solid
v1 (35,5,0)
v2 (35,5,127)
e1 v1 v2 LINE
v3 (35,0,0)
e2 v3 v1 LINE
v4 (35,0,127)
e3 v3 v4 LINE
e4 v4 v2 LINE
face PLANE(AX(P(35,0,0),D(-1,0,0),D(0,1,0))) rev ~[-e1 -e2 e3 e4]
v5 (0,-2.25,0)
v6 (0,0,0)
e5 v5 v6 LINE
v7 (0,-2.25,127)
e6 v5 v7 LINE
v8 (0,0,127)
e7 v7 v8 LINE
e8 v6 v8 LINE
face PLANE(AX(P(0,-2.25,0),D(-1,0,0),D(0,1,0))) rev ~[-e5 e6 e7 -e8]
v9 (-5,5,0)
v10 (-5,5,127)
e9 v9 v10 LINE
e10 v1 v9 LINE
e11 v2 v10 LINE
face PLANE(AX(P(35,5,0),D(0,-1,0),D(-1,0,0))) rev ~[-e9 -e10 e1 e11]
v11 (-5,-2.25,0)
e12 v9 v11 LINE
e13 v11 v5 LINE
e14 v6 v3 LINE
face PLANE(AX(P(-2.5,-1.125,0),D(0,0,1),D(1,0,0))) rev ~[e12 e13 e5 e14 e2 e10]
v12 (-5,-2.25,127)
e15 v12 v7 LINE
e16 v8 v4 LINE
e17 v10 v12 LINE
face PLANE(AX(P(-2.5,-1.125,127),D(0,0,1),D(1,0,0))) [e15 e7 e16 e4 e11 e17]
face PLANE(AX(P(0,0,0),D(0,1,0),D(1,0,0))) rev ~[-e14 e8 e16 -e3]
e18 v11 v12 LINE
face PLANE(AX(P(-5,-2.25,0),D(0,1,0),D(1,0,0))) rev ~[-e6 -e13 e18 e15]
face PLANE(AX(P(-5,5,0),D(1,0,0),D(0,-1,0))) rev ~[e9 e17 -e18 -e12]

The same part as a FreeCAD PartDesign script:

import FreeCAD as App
import Part
import Sketcher
Q = App.Units.Quantity

doc = App.newDocument("Part")
body = doc.addObject("PartDesign::Body", "Body")

sketch1 = body.newObject("Sketcher::SketchObject", "Sketch")
sketch1.AttachmentSupport = (doc.getObject("XY_Plane"), [""])
sketch1.MapMode = "FlatFace"
sketch1.addGeometry(Part.LineSegment(App.Vector(-5, -2.2, 0), App.Vector(0, -2.2, 0)), False)
sketch1.addGeometry(Part.LineSegment(App.Vector(0, -2.2, 0), App.Vector(0, 0, 0)), False)
sketch1.addGeometry(Part.LineSegment(App.Vector(0, 0, 0), App.Vector(35, 0, 0)), False)
sketch1.addGeometry(Part.LineSegment(App.Vector(35, 0, 0), App.Vector(35, 5, 0)), False)
sketch1.addGeometry(Part.LineSegment(App.Vector(35, 5, 0), App.Vector(-5, 5, 0)), False)
sketch1.addGeometry(Part.LineSegment(App.Vector(-5, 5, 0), App.Vector(-5, -2.2, 0)), False)
sketch1.addConstraint(Sketcher.Constraint("Coincident", 0, 2, 1, 1))
sketch1.addConstraint(Sketcher.Constraint("Coincident", 1, 2, 2, 1))
sketch1.addConstraint(Sketcher.Constraint("Coincident", 2, 2, 3, 1))
sketch1.addConstraint(Sketcher.Constraint("Coincident", 3, 2, 4, 1))
sketch1.addConstraint(Sketcher.Constraint("Coincident", 4, 2, 5, 1))
sketch1.addConstraint(Sketcher.Constraint("Coincident", 5, 2, 0, 1))
sketch1.addConstraint(Sketcher.Constraint("Horizontal", 0))
sketch1.addConstraint(Sketcher.Constraint("Vertical", 1))
sketch1.addConstraint(Sketcher.Constraint("Horizontal", 2))
sketch1.addConstraint(Sketcher.Constraint("Vertical", 3))
sketch1.addConstraint(Sketcher.Constraint("Horizontal", 4))
sketch1.addConstraint(Sketcher.Constraint("Vertical", 5))
sketch1.addConstraint(Sketcher.Constraint("Coincident", 1, 2, -1, 1))
sketch1.addConstraint(Sketcher.Constraint("Equal", 0, 3))
sketch1.addConstraint(Sketcher.Constraint("DistanceX", 0, 1, 0, 2, Q("5 mm")))
sketch1.addConstraint(Sketcher.Constraint("DistanceX", 2, 1, 2, 2, Q("35 mm")))
sketch1.addConstraint(Sketcher.Constraint("DistanceY", 1, 1, 1, 2, Q("2.25 mm")))
pad1 = body.newObject("PartDesign::Pad", "Pad")
pad1.Profile = sketch1
pad1.Length = 127

doc.recompute()
